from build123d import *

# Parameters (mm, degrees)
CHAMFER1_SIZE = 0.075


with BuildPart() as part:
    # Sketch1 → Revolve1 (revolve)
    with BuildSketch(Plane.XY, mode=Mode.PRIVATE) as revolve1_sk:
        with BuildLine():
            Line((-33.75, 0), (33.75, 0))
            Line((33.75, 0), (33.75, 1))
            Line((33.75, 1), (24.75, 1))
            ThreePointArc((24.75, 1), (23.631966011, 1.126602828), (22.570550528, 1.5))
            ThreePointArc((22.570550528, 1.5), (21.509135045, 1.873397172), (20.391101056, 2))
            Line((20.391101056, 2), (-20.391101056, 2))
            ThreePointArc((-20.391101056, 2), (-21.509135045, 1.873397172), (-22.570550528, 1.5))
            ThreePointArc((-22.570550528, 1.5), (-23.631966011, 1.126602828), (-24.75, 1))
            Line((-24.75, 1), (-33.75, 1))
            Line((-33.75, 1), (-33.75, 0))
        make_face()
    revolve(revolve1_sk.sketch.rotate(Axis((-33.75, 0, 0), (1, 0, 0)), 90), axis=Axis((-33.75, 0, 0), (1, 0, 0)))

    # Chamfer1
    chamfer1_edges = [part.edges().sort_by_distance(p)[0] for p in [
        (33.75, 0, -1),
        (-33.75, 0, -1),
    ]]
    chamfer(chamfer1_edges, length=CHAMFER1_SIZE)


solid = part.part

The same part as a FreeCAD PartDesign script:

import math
import FreeCAD as App
import Part
import Sketcher

V = App.Vector


def edges_at(feature, points):
    """Names of the edges that pass closest to the given points."""
    edges = feature.Shape.Edges
    near = lambda p: min(range(len(edges)), key=lambda i: edges[i].distToShape(Part.Vertex(*p))[0])
    return sorted({f"Edge{near(p) + 1}" for p in points})

doc = App.newDocument("Part")
body = doc.addObject("PartDesign::Body", "Body")

# Sketch on XY plane
sketch1 = body.newObject("Sketcher::SketchObject", "Sketch")
sketch1.AttachmentSupport = (doc.getObject("XY_Plane"), [""])
sketch1.MapMode = "FlatFace"
sketch1.addGeometry([
    Part.LineSegment(V(-33.8, 0, 0), V(33.8, 0, 0)),  # 0
    Part.LineSegment(V(33.8, 0, 0), V(33.8, 1, 0)),  # 1
    Part.LineSegment(V(33.8, 1, 0), V(24.8, 1, 0)),  # 2
    Part.ArcOfCircle(Part.Circle(V(24.8, 6, 0), V(0, 0, 1), 5), math.radians(-116), math.radians(-90)),  # 3
    Part.ArcOfCircle(Part.Circle(V(20.4, -3, 0), V(0, 0, 1), 5), math.radians(64), math.radians(90)),  # 4
    Part.LineSegment(V(20.4, 2, 0), V(-20.4, 2, 0)),  # 5
    Part.ArcOfCircle(Part.Circle(V(-20.4, -3, 0), V(0, 0, 1), 5), math.radians(90), math.radians(116)),  # 6
    Part.ArcOfCircle(Part.Circle(V(-24.8, 6, 0), V(0, 0, 1), 5), math.radians(-90), math.radians(-64)),  # 7
    Part.LineSegment(V(-24.8, 1, 0), V(-33.8, 1, 0)),  # 8
    Part.LineSegment(V(-33.8, 1, 0), V(-33.8, 0, 0)),  # 9
], False)
sketch1.addConstraint([
    Sketcher.Constraint("Coincident", 0, 2, 1, 1),
    Sketcher.Constraint("Coincident", 1, 2, 2, 1),
    Sketcher.Constraint("Tangent", 2, 2, 3, 2),
    Sketcher.Constraint("Tangent", 3, 1, 4, 1),
    Sketcher.Constraint("Tangent", 4, 2, 5, 1),
    Sketcher.Constraint("Tangent", 5, 2, 6, 1),
    Sketcher.Constraint("Tangent", 6, 2, 7, 2),
    Sketcher.Constraint("Tangent", 7, 1, 8, 1),
    Sketcher.Constraint("Coincident", 8, 2, 9, 1),
    Sketcher.Constraint("Coincident", 9, 2, 0, 1),
    Sketcher.Constraint("Horizontal", 0),
    Sketcher.Constraint("Vertical", 1),
    Sketcher.Constraint("Horizontal", 2),
    Sketcher.Constraint("Horizontal", 5),
    Sketcher.Constraint("Horizontal", 8),
    Sketcher.Constraint("Vertical", 9),
    Sketcher.Constraint("Equal", 3, 4),
    Sketcher.Constraint("Equal", 4, 6),
    Sketcher.Constraint("Equal", 6, 7),
    Sketcher.Constraint("Symmetric", 0, 2, 9, 2, -1, 1),
    Sketcher.Constraint("Symmetric", 3, 3, 7, 3, -2),
    Sketcher.Constraint("Radius", 3, 5.0),
    Sketcher.Constraint("DistanceX", 2, 2, 2, 1, 9.0),
    Sketcher.Constraint("DistanceY", 1, 1, 1, 2, 1.0),
    Sketcher.Constraint("DistanceX", 0, 1, 0, 2, 67.5),
    Sketcher.Constraint("DistanceY", 4, 3, -1, 1, 3.0),
])
revolution = body.newObject("PartDesign::Revolution", "Revolution")
revolution.Profile = sketch1
revolution.ReferenceAxis = (sketch1, ["H_Axis"])
revolution.Angle = 360
doc.recompute()

chamfer = body.newObject("PartDesign::Chamfer", "Chamfer")
chamfer.Base = (revolution, edges_at(revolution, [(33.75, 0, -1), (-33.75, 0, -1)]))
chamfer.Size = 0.075

doc.recompute()
